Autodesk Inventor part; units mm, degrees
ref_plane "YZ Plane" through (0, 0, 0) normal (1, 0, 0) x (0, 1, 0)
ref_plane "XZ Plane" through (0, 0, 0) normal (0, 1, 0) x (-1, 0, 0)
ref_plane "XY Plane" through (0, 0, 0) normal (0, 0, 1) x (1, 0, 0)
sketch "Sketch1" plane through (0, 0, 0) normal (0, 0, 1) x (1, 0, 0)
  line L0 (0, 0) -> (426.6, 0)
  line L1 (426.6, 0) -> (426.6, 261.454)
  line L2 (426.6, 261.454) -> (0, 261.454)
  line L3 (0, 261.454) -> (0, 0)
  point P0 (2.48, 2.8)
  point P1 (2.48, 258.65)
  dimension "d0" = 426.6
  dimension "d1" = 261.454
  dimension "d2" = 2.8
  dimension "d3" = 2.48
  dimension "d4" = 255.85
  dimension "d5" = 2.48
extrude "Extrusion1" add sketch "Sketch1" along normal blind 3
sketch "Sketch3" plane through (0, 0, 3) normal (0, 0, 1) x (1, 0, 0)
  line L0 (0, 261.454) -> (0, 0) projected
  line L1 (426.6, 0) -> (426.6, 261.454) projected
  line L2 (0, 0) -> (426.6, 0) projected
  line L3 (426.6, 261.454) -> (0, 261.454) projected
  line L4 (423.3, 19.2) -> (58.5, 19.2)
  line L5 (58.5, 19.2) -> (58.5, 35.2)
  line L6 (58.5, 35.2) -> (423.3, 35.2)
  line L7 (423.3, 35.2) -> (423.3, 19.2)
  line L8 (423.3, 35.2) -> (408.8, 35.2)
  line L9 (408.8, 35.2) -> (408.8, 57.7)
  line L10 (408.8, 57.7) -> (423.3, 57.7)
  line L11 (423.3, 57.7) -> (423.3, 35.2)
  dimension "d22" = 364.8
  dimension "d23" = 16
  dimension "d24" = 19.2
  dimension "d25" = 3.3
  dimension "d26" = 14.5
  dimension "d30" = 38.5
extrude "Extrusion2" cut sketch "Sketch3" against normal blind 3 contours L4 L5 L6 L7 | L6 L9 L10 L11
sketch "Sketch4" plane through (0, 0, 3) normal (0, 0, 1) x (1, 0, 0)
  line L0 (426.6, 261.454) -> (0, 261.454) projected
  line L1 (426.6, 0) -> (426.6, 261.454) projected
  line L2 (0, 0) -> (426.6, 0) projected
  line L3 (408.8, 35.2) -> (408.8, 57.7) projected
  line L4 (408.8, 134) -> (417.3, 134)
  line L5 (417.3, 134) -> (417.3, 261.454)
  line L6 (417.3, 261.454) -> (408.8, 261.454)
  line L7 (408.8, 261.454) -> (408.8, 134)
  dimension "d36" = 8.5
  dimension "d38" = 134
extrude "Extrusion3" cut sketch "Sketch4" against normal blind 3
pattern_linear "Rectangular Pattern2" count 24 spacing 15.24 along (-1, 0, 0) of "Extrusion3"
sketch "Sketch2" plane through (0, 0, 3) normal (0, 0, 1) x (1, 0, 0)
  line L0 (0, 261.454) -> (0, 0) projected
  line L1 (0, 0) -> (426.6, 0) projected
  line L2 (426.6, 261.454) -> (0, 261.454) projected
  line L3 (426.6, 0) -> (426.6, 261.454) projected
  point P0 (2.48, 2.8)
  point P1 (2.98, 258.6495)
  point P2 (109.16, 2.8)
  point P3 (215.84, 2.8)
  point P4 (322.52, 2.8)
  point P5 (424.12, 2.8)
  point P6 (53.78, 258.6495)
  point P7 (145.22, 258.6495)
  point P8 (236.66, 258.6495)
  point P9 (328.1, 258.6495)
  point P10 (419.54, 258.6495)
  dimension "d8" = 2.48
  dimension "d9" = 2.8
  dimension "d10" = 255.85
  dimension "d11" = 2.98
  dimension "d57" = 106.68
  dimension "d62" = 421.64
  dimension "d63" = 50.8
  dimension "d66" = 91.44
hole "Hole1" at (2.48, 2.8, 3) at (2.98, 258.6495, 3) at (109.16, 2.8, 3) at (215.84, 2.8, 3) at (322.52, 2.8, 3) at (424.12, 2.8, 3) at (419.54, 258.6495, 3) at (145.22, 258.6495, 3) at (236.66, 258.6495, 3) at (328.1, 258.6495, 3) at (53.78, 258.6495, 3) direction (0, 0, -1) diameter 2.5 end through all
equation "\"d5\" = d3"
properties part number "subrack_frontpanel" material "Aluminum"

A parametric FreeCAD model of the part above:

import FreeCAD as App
import Part
import Sketcher

V = App.Vector
Q = App.Units.Quantity


def add_polygon(sketch, points):
    """Adds a closed chain of lines whose ends are joined by coincident constraints."""
    first, n = sketch.GeometryCount, len(points)
    for a, b in zip(points, points[1:] + points[:1]):
        sketch.addGeometry(Part.LineSegment(App.Vector(*a, 0), App.Vector(*b, 0)), False)
    for i in range(n):
        sketch.addConstraint(Sketcher.Constraint("Coincident", first + i, 2, first + (i + 1) % n, 1))

doc = App.newDocument("Part")
params = doc.addObject("Spreadsheet::Sheet", "Params")
for row, (alias, value) in enumerate([
    ("sketch1_width", "426.6 mm"),
    ("pad1_length", "3 mm"),
    ("sketch2_height", "16 mm"),
    ("sketch2_width", "364.8 mm"),
    ("sketch2_width2", "14.5 mm"),
    ("sketch2_height2", "38.5 mm"),
    ("pocket1_length", "3 mm"),
    ("sketch3_width", "8.5 mm"),
    ("pocket2_length", "3 mm"),
    ("linearpattern_pitch", "15.24 mm"),
    ("sketch4_diameter", "2.5 mm"),
    ("hole_diameter", "2.5 mm"),
], start=1):
    params.set(f"A{row}", alias)
    params.set(f"B{row}", "=" + value)
    params.setAlias(f"B{row}", alias)

body = doc.addObject("PartDesign::Body", "Body")

sketch1 = body.newObject("Sketcher::SketchObject", "Sketch")
sketch1.AttachmentSupport = (doc.getObject("XY_Plane"), [""])
sketch1.MapMode = "FlatFace"
add_polygon(sketch1, [(0, 261), (0, 0), (427, 0), (427, 261)])
sketch1.addConstraint([
    Sketcher.Constraint("Vertical", 0),
    Sketcher.Constraint("Horizontal", 1),
    Sketcher.Constraint("Vertical", 2),
    Sketcher.Constraint("Horizontal", 3),
    Sketcher.Constraint("Coincident", 0, 2, -1, 1),
    Sketcher.Constraint("DistanceX", 1, 1, 1, 2, Q("426.6 mm")),
    Sketcher.Constraint("DistanceY", 0, 2, 0, 1, Q("261.454 mm")),
])
sketch1.setExpression("Constraints[9]", "Params.sketch1_width")
pad1 = body.newObject("PartDesign::Pad", "Pad")
pad1.Profile = sketch1
pad1.setExpression("Length", "Params.pad1_length")

sketch2 = body.newObject("Sketcher::SketchObject", "Sketch001")
sketch2.AttachmentSupport = (doc.getObject("XY_Plane"), [""])
sketch2.MapMode = "FlatFace"
sketch2.AttachmentOffset = App.Placement(V(0, 0, 3), App.Rotation())
add_polygon(sketch2, [(58, 19), (423, 19), (423, 58), (409, 58), (409, 35), (58, 35)])
sketch2.addConstraint([
    Sketcher.Constraint("Horizontal", 0),
    Sketcher.Constraint("Vertical", 1),
    Sketcher.Constraint("Horizontal", 2),
    Sketcher.Constraint("Vertical", 3),
    Sketcher.Constraint("Horizontal", 4),
    Sketcher.Constraint("Vertical", 5),
    Sketcher.Constraint("DistanceY", 5, 2, 5, 1, Q("16 mm")),
    Sketcher.Constraint("DistanceX", 0, 1, 0, 2, Q("364.8 mm")),
    Sketcher.Constraint("DistanceX", 2, 2, 2, 1, Q("14.5 mm")),
    Sketcher.Constraint("DistanceY", 1, 1, 1, 2, Q("38.5 mm")),
    Sketcher.Constraint("DistanceY", -1, 1, 0, 2, Q("19.2 mm")),
    Sketcher.Constraint("DistanceX", -1, 1, 0, 2, Q("423.3 mm")),
])
sketch2.setExpression("Constraints[12]", "Params.sketch2_height")
sketch2.setExpression("Constraints[13]", "Params.sketch2_width")
sketch2.setExpression("Constraints[14]", "Params.sketch2_width2")
sketch2.setExpression("Constraints[15]", "Params.sketch2_height2")
pocket1 = body.newObject("PartDesign::Pocket", "Pocket")
pocket1.Profile = sketch2
pocket1.setExpression("Length", "Params.pocket1_length")

sketch3 = body.newObject("Sketcher::SketchObject", "Sketch002")
sketch3.AttachmentSupport = (doc.getObject("XY_Plane"), [""])
sketch3.MapMode = "FlatFace"
sketch3.AttachmentOffset = App.Placement(V(0, 0, 3), App.Rotation())
add_polygon(sketch3, [(417, 134), (417, 261), (409, 261), (409, 134)])
sketch3.addConstraint([
    Sketcher.Constraint("Vertical", 0),
    Sketcher.Constraint("Horizontal", 1),
    Sketcher.Constraint("Vertical", 2),
    Sketcher.Constraint("Horizontal", 3),
    Sketcher.Constraint("DistanceX", 1, 2, 1, 1, Q("8.5 mm")),
    Sketcher.Constraint("DistanceY", -1, 1, 2, 2, Q("134 mm")),
    Sketcher.Constraint("DistanceX", -1, 1, 0, 2, Q("417.3 mm")),
    Sketcher.Constraint("DistanceY", 0, 1, 0, 2, Q("127.454 mm")),
])
sketch3.setExpression("Constraints[8]", "Params.sketch3_width")
pocket2 = body.newObject("PartDesign::Pocket", "Pocket001")
pocket2.Profile = sketch3
pocket2.setExpression("Length", "Params.pocket2_length")
doc.recompute()

linearpattern = body.newObject("PartDesign::LinearPattern", "LinearPattern")
linearpattern.Originals = [pocket2]
linearpattern.Direction = (doc.getObject("X_Axis"), [""])
linearpattern.Mode = "offset"
linearpattern.setExpression("Offset", "Params.linearpattern_pitch")
linearpattern.Occurrences = 24
linearpattern.Reversed = True
body.Tip = linearpattern

sketch4 = body.newObject("Sketcher::SketchObject", "Sketch003")
sketch4.AttachmentSupport = (doc.getObject("XY_Plane"), [""])
sketch4.MapMode = "FlatFace"
sketch4.AttachmentOffset = App.Placement(V(0, 0, 3), App.Rotation())
sketch4.addGeometry([
    Part.Circle(V(2.5, 2.8, 0), V(0, 0, 1), 1.2),
    Part.Circle(V(3, 258.6, 0), V(0, 0, 1), 1.2),
    Part.Circle(V(109.2, 2.8, 0), V(0, 0, 1), 1.2),
    Part.Circle(V(215.8, 2.8, 0), V(0, 0, 1), 1.2),
    Part.Circle(V(322.5, 2.8, 0), V(0, 0, 1), 1.2),
    Part.Circle(V(424.1, 2.8, 0), V(0, 0, 1), 1.2),
    Part.Circle(V(419.5, 258.6, 0), V(0, 0, 1), 1.2),
    Part.Circle(V(145.2, 258.6, 0), V(0, 0, 1), 1.2),
    Part.Circle(V(236.7, 258.6, 0), V(0, 0, 1), 1.2),
    Part.Circle(V(328.1, 258.6, 0), V(0, 0, 1), 1.2),
    Part.Circle(V(53.8, 258.6, 0), V(0, 0, 1), 1.2),
], False)
sketch4.addConstraint([
    Sketcher.Constraint("Equal", 0, 1),
    Sketcher.Constraint("Equal", 1, 2),
    Sketcher.Constraint("Equal", 2, 3),
    Sketcher.Constraint("Equal", 3, 4),
    Sketcher.Constraint("Equal", 4, 5),
    Sketcher.Constraint("Equal", 5, 6),
    Sketcher.Constraint("Equal", 6, 7),
    Sketcher.Constraint("Equal", 7, 8),
    Sketcher.Constraint("Equal", 8, 9),
    Sketcher.Constraint("Equal", 9, 10),
    Sketcher.Constraint("Horizontal", 0, 3, 2, 3),
    Sketcher.Constraint("Horizontal", 2, 3, 3, 3),
    Sketcher.Constraint("Horizontal", 3, 3, 4, 3),
    Sketcher.Constraint("Horizontal", 4, 3, 5, 3),
    Sketcher.Constraint("Horizontal", 1, 3, 6, 3),
    Sketcher.Constraint("Horizontal", 6, 3, 7, 3),
    Sketcher.Constraint("Horizontal", 7, 3, 8, 3),
    Sketcher.Constraint("Horizontal", 8, 3, 9, 3),
    Sketcher.Constraint("Horizontal", 9, 3, 10, 3),
    Sketcher.Constraint("Diameter", 0, Q("2.5 mm")),
    Sketcher.Constraint("DistanceY", -1, 1, 0, 3, Q("2.8 mm")),
    Sketcher.Constraint("DistanceX", -1, 1, 9, 3, Q("328.1 mm")),
    Sketcher.Constraint("DistanceX", 0, 3, 1, 3, Q("0.5 mm")),
    Sketcher.Constraint("DistanceX", 4, 3, 5, 3, Q("101.6 mm")),
    Sketcher.Constraint("DistanceX", 3, 3, 6, 3, Q("203.7 mm")),
    Sketcher.Constraint("DistanceX", 1, 3, 10, 3, Q("50.8 mm")),
    Sketcher.Constraint("DistanceX", -1, 1, 0, 3, Q("2.48 mm")),
    Sketcher.Constraint("DistanceX", -1, 1, 2, 3, Q("109.16 mm")),
    Sketcher.Constraint("DistanceX", -1, 1, 3, 3, Q("215.84 mm")),
    Sketcher.Constraint("DistanceX", -1, 1, 4, 3, Q("322.52 mm")),
    Sketcher.Constraint("DistanceX", -1, 1, 7, 3, Q("145.22 mm")),
    Sketcher.Constraint("DistanceX", -1, 1, 8, 3, Q("236.66 mm")),
    Sketcher.Constraint("DistanceY", -1, 1, 1, 3, Q("258.6495 mm")),
])
sketch4.setExpression("Constraints[19]", "Params.sketch4_diameter")
doc.recompute()
hole = body.newObject("PartDesign::Hole", "Hole")
hole.Profile = sketch4
hole.ThreadType = "None"
hole.setExpression("Diameter", "Params.hole_diameter")
hole.DepthType = "ThroughAll"

doc.recompute()
